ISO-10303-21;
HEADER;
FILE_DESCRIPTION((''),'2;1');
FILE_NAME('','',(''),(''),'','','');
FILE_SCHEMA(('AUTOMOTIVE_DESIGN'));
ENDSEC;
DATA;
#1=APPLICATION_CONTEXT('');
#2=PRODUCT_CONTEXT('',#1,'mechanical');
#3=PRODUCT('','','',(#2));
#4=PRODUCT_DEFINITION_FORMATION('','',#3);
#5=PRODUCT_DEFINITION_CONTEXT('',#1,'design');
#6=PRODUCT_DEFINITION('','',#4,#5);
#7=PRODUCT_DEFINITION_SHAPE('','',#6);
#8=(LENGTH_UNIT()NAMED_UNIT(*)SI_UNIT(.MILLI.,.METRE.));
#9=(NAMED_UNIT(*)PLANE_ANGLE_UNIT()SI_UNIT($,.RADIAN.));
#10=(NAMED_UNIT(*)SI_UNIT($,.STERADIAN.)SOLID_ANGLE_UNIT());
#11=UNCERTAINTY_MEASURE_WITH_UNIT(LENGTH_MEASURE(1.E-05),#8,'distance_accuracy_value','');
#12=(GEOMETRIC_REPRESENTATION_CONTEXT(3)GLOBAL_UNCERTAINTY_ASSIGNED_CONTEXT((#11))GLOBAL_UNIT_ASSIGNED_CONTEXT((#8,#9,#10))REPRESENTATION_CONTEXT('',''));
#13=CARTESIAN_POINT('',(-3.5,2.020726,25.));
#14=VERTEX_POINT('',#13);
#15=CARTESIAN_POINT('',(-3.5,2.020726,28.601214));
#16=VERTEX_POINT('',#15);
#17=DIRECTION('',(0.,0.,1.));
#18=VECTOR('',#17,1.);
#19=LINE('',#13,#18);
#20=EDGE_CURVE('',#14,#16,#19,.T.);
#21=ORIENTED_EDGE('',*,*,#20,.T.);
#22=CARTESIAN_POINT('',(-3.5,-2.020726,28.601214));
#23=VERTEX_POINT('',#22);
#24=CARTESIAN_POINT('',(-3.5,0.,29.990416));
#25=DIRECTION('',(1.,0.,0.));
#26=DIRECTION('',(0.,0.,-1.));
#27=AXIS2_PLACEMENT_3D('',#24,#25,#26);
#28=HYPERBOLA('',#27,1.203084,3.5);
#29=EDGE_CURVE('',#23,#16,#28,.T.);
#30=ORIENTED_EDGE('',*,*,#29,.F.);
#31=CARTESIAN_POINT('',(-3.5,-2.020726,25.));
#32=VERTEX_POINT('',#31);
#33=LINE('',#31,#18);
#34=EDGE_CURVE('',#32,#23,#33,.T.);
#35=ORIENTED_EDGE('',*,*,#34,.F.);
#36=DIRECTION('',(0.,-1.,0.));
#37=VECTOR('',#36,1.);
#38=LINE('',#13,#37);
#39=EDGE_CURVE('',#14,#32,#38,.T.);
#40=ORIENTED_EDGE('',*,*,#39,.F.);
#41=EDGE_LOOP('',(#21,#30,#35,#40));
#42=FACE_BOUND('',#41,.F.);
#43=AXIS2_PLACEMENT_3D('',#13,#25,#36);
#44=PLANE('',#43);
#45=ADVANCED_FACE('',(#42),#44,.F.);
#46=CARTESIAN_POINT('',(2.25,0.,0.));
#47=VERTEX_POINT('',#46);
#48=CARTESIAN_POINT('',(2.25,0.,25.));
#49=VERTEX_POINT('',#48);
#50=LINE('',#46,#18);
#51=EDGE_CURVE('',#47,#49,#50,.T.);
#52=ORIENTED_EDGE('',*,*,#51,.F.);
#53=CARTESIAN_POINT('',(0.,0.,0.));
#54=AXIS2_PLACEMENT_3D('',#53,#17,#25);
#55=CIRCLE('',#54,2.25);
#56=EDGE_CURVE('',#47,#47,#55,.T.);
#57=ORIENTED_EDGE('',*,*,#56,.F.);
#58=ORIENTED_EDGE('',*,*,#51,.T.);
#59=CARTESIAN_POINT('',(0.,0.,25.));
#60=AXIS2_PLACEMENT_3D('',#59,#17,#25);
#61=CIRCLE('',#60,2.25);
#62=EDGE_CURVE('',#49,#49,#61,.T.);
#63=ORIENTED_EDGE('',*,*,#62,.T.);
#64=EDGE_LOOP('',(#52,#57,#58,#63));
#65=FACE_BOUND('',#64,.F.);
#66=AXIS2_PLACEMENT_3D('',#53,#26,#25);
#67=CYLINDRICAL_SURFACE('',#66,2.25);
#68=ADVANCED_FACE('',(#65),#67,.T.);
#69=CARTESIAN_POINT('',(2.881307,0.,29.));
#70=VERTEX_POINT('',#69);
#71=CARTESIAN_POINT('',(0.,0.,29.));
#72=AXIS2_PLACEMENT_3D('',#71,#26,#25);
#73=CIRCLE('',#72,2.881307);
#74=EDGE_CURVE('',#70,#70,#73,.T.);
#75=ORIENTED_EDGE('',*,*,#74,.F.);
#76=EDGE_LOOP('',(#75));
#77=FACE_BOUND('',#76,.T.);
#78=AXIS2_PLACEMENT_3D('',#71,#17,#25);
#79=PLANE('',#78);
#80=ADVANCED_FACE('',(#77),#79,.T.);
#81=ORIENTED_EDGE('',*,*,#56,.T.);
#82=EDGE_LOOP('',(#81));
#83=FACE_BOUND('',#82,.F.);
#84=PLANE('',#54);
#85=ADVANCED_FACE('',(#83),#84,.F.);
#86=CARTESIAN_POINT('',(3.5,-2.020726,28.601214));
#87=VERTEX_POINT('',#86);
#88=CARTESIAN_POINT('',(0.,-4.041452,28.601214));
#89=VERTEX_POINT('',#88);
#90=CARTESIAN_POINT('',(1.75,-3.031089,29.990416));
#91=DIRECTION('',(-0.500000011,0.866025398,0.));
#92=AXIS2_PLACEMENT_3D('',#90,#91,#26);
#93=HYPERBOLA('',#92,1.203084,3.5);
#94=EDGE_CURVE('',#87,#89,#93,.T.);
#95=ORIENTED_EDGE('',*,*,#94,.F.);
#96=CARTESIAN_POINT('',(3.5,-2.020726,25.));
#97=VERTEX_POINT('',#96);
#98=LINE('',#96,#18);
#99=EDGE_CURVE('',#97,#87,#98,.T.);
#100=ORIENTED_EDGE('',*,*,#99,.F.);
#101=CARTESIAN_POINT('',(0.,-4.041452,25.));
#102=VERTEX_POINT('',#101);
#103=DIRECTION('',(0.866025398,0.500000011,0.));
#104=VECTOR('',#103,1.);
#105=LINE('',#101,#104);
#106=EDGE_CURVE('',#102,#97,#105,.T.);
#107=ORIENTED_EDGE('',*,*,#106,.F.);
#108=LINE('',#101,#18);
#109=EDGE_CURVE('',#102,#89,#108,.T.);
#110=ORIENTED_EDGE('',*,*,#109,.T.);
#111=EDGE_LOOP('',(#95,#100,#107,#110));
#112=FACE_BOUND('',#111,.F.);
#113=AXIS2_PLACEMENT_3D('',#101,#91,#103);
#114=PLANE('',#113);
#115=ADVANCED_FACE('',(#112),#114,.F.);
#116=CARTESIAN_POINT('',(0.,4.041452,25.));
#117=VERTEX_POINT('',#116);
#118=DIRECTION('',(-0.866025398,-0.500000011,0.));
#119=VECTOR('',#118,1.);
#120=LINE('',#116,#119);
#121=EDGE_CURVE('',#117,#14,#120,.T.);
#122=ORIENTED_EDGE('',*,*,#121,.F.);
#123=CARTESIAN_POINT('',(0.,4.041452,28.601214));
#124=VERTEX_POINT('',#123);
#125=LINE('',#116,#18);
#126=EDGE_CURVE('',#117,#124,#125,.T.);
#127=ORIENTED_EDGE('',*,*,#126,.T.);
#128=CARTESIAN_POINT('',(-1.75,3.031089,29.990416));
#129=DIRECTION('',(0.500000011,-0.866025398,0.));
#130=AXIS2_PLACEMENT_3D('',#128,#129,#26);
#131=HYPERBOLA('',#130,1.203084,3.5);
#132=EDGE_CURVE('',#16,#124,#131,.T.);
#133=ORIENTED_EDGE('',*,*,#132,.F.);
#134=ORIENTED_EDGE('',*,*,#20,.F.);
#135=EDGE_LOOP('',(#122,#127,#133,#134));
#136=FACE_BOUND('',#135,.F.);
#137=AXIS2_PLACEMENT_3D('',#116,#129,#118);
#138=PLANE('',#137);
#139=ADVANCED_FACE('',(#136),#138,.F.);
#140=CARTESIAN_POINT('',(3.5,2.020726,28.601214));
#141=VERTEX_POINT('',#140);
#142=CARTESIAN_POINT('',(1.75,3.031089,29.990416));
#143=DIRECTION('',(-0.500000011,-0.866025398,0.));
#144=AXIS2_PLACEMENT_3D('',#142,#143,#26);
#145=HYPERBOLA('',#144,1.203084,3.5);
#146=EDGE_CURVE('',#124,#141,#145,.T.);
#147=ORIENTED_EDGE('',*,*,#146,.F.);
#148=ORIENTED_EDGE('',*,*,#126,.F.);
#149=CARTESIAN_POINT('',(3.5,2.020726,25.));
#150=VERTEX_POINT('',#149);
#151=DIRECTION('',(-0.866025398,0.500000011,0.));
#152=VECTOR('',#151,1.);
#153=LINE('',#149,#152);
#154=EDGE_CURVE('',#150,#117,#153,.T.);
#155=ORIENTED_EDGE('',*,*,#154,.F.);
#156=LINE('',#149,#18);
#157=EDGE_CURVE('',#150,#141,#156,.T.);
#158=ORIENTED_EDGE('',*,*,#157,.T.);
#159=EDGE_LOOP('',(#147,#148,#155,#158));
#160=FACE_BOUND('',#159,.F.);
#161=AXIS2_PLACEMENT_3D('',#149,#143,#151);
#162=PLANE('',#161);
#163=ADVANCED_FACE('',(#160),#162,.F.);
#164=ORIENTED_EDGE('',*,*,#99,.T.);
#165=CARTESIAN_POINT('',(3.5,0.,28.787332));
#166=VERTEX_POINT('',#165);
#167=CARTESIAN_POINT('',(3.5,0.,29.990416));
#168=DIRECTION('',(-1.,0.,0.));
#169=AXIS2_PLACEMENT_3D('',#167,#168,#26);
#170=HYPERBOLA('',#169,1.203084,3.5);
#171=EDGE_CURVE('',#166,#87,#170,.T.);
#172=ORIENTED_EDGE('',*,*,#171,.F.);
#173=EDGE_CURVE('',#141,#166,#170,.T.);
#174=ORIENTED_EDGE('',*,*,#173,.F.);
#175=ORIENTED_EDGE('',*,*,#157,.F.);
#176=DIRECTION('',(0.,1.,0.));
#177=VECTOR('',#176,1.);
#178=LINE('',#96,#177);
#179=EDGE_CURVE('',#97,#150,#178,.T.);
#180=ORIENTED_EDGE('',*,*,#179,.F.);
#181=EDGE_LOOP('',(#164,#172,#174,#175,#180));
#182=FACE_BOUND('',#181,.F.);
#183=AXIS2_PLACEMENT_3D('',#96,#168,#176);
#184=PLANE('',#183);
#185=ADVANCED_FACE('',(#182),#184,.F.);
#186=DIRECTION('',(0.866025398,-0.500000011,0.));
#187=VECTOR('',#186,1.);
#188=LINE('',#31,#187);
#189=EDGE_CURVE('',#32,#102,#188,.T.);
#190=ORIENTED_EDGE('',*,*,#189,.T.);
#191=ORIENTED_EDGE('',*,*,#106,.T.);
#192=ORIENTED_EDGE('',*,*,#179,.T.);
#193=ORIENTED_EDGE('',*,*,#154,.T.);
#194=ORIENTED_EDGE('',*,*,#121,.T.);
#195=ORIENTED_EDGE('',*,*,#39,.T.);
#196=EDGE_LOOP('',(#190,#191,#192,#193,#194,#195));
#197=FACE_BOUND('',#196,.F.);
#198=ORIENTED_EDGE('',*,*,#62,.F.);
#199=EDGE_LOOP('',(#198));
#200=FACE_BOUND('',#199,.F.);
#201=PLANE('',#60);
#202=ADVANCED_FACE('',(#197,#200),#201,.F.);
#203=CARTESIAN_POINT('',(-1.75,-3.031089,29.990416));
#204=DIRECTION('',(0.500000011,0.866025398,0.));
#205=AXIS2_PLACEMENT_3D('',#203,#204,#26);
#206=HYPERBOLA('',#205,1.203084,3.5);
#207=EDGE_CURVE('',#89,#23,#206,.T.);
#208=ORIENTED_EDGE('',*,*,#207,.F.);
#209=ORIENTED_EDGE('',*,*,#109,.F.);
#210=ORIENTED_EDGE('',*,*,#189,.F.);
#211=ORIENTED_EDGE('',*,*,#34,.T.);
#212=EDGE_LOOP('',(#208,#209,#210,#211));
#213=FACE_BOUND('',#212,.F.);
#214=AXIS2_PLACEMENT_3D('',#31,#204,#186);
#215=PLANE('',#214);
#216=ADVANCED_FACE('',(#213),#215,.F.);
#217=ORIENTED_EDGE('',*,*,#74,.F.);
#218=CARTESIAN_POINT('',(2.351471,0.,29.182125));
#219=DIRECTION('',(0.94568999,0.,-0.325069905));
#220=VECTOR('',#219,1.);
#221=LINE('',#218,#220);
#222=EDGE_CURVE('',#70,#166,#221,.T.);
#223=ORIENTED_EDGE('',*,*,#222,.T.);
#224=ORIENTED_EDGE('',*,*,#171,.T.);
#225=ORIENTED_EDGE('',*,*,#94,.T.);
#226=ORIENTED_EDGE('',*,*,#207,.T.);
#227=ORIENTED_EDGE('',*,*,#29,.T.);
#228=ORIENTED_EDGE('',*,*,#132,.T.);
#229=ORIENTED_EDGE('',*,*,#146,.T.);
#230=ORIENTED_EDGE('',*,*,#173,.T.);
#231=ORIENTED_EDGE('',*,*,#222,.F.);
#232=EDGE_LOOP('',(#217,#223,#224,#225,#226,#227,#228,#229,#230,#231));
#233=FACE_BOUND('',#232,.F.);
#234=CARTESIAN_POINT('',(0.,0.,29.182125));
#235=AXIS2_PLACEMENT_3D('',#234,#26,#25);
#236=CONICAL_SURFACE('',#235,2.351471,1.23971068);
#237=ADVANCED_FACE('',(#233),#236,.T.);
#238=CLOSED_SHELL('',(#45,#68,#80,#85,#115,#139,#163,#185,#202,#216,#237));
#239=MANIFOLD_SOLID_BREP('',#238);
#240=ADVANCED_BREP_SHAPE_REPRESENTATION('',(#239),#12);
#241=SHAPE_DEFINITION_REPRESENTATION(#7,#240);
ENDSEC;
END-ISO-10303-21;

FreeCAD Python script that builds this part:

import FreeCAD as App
import Part
import Sketcher

V = App.Vector
Q = App.Units.Quantity

doc = App.newDocument("Part")
params = doc.addObject("Spreadsheet::Sheet", "Params")
for row, (alias, value) in enumerate([
    ("revolution_angle", "360 deg"),
    ("sketch2_diameter", "4.5 mm"),
    ("pad1_length", "25 mm"),
    ("pad2_length", "4 mm"),
], start=1):
    params.set(f"A{row}", alias)
    params.set(f"B{row}", "=" + value)
    params.setAlias(f"B{row}", alias)

body = doc.addObject("PartDesign::Body", "Body")

# Sketch on XZ plane
sketch1 = body.newObject("Sketcher::SketchObject", "Sketch")
sketch1.AttachmentSupport = (doc.getObject("XZ_Plane"), [""])
sketch1.MapMode = "FlatFace"
sketch1.addGeometry([
    Part.LineSegment(V(0, 29.18, 0), V(2.35, 29.18, 0)),  # 0
    Part.LineSegment(V(2.35, 29.18, 0), V(4.65, 28.39, 0)),  # 1
    Part.LineSegment(V(4.65, 28.39, 0), V(4.65, 29.64, 0)),  # 2
    Part.LineSegment(V(4.65, 29.64, 0), V(0, 29.64, 0)),  # 3
    Part.LineSegment(V(0, 29.64, 0), V(0, 29.18, 0)),  # 4
], False)
sketch1.addConstraint([
    Sketcher.Constraint("Coincident", 0, 2, 1, 1),
    Sketcher.Constraint("Coincident", 1, 2, 2, 1),
    Sketcher.Constraint("Coincident", 2, 2, 3, 1),
    Sketcher.Constraint("Coincident", 3, 2, 4, 1),
    Sketcher.Constraint("Coincident", 4, 2, 0, 1),
    Sketcher.Constraint("Horizontal", 0),
    Sketcher.Constraint("Vertical", 2),
    Sketcher.Constraint("Horizontal", 3),
    Sketcher.Constraint("Vertical", 4),
    Sketcher.Constraint("PointOnObject", 3, 2, -2),
    Sketcher.Constraint("DistanceX", 0, 1, 0, 2, Q("2.351471 mm")),
    Sketcher.Constraint("DistanceY", 4, 2, 4, 1, Q("0.45899 mm")),
    Sketcher.Constraint("DistanceX", 3, 2, 3, 1, Q("4.653152 mm")),
    Sketcher.Constraint("DistanceY", 2, 1, 2, 2, Q("1.250166 mm")),
    Sketcher.Constraint("DistanceY", -1, 1, 1, 2, Q("28.390949 mm")),
])
revolution = body.newObject("PartDesign::Revolution", "Revolution")
revolution.Profile = sketch1
revolution.ReferenceAxis = (sketch1, ["V_Axis"])
revolution.setExpression("Angle", "Params.revolution_angle")
body2 = doc.addObject("PartDesign::Body", "Body001")

# Sketch on XY plane
sketch2 = body2.newObject("Sketcher::SketchObject", "Sketch001")
sketch2.AttachmentSupport = (doc.getObject("XY_Plane001"), [""])
sketch2.MapMode = "FlatFace"
sketch2.addGeometry(Part.Circle(V(0, 0, 0), V(0, 0, 1), 2.2), False)
sketch2.addConstraint([
    Sketcher.Constraint("Coincident", 0, 3, -1, 1),
    Sketcher.Constraint("Diameter", 0, Q("4.5 mm")),
])
sketch2.setExpression("Constraints[1]", "Params.sketch2_diameter")
pad1 = body2.newObject("PartDesign::Pad", "Pad")
pad1.Profile = sketch2
pad1.setExpression("Length", "Params.pad1_length")

# Sketch on XY plane
sketch3 = body2.newObject("Sketcher::SketchObject", "Sketch002")
sketch3.AttachmentSupport = (doc.getObject("XY_Plane001"), [""])
sketch3.MapMode = "FlatFace"
sketch3.AttachmentOffset = App.Placement(V(0, 0, 25), App.Rotation())
sketch3.addGeometry([
    Part.LineSegment(V(3.5, 2, 0), V(0, 4, 0)),  # 0
    Part.LineSegment(V(0, 4, 0), V(-3.5, 2, 0)),  # 1
    Part.LineSegment(V(-3.5, 2, 0), V(-3.5, -2, 0)),  # 2
    Part.LineSegment(V(-3.5, -2, 0), V(0, -4, 0)),  # 3
    Part.LineSegment(V(0, -4, 0), V(3.5, -2, 0)),  # 4
    Part.LineSegment(V(3.5, -2, 0), V(3.5, 2, 0)),  # 5
], False)
sketch3.addConstraint([
    Sketcher.Constraint("Coincident", 0, 2, 1, 1),
    Sketcher.Constraint("Coincident", 1, 2, 2, 1),
    Sketcher.Constraint("Coincident", 2, 2, 3, 1),
    Sketcher.Constraint("Coincident", 3, 2, 4, 1),
    Sketcher.Constraint("Coincident", 4, 2, 5, 1),
    Sketcher.Constraint("Coincident", 5, 2, 0, 1),
    Sketcher.Constraint("Vertical", 2),
    Sketcher.Constraint("Vertical", 5),
    Sketcher.Constraint("Symmetric", 0, 2, 3, 2, -1, 1),
    Sketcher.Constraint("Symmetric", 1, 2, 4, 2, -1, 1),
    Sketcher.Constraint("PointOnObject", 0, 2, -2),
    Sketcher.Constraint("Parallel", 0, 3),
    Sketcher.Constraint("Horizontal", 2, 2, 4, 2),
    Sketcher.Constraint("Angle", 0, Q("149.999999 deg")),
    Sketcher.Constraint("DistanceX", 2, 2, 4, 2, Q("7 mm")),
    Sketcher.Constraint("DistanceY", 2, 2, 2, 1, Q("4.041452 mm")),
])
pad2 = body2.newObject("PartDesign::Pad", "Pad001")
pad2.Profile = sketch3
pad2.setExpression("Length", "Params.pad2_length")
doc.recompute()

boolean = body2.newObject("PartDesign::Boolean", "Boolean")
boolean.Type = "Cut"
boolean.addObjects([body])

doc.recompute()
